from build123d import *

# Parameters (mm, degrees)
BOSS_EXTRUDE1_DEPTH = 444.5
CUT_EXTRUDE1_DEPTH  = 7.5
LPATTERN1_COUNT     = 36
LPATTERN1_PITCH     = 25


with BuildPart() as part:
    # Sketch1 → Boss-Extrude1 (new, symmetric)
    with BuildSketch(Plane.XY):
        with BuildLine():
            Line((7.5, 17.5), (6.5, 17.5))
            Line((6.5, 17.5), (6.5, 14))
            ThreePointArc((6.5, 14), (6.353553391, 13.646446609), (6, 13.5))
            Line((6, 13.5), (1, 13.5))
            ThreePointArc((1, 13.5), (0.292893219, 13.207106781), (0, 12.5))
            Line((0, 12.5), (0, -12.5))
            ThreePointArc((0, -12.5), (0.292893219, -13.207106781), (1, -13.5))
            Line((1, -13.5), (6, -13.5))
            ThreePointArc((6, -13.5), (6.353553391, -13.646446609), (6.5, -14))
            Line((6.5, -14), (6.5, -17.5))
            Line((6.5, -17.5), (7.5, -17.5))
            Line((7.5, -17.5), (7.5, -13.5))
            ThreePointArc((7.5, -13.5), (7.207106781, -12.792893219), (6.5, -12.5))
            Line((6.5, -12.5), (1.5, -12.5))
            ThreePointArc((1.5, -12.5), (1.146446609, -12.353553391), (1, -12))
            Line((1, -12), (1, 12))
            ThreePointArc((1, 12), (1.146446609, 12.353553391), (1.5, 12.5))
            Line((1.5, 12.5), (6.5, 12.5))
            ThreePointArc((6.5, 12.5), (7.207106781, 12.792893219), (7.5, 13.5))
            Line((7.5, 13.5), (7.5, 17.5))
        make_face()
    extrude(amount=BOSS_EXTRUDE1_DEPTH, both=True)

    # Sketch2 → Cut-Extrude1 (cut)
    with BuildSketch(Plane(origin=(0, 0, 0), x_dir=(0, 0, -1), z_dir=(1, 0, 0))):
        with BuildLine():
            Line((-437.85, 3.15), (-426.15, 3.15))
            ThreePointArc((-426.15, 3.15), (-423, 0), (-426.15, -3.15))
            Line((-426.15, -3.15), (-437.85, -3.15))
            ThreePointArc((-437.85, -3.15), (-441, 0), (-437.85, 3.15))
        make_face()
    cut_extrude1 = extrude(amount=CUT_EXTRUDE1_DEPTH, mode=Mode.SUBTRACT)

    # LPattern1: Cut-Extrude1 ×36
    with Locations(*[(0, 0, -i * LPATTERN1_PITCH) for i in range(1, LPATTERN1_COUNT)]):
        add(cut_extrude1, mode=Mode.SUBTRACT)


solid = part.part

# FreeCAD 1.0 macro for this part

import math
import FreeCAD as App
import Part
import Sketcher

V = App.Vector
Q = App.Units.Quantity

doc = App.newDocument("Part")
body = doc.addObject("PartDesign::Body", "Body")

sketch1 = body.newObject("Sketcher::SketchObject", "Sketch")
sketch1.AttachmentSupport = (doc.getObject("XY_Plane"), [""])
sketch1.MapMode = "FlatFace"
sketch1.addGeometry([
    Part.LineSegment(V(7.5, 17.5, 0), V(6.5, 17.5, 0)),
    Part.LineSegment(V(6.5, 17.5, 0), V(6.5, 14, 0)),
    Part.ArcOfCircle(Part.Circle(V(6, 14, 0), V(0, 0, 1), 0.5), math.radians(-90), math.radians(0)),
    Part.LineSegment(V(6, 13.5, 0), V(1, 13.5, 0)),
    Part.ArcOfCircle(Part.Circle(V(1, 12.5, 0), V(0, 0, 1), 1), math.radians(90), math.radians(180)),
    Part.LineSegment(V(0, 12.5, 0), V(0, -12.5, 0)),
    Part.ArcOfCircle(Part.Circle(V(1, -12.5, 0), V(0, 0, 1), 1), math.radians(-180), math.radians(-90)),
    Part.LineSegment(V(1, -13.5, 0), V(6, -13.5, 0)),
    Part.ArcOfCircle(Part.Circle(V(6, -14, 0), V(0, 0, 1), 0.5), math.radians(0), math.radians(90)),
    Part.LineSegment(V(6.5, -14, 0), V(6.5, -17.5, 0)),
    Part.LineSegment(V(6.5, -17.5, 0), V(7.5, -17.5, 0)),
    Part.LineSegment(V(7.5, -17.5, 0), V(7.5, -13.5, 0)),
    Part.ArcOfCircle(Part.Circle(V(6.5, -13.5, 0), V(0, 0, 1), 1), math.radians(0), math.radians(90)),
    Part.LineSegment(V(6.5, -12.5, 0), V(1.5, -12.5, 0)),
    Part.ArcOfCircle(Part.Circle(V(1.5, -12, 0), V(0, 0, 1), 0.5), math.radians(180), math.radians(270)),
    Part.LineSegment(V(1, -12, 0), V(1, 12, 0)),
    Part.ArcOfCircle(Part.Circle(V(1.5, 12, 0), V(0, 0, 1), 0.5), math.radians(90), math.radians(180)),
    Part.LineSegment(V(1.5, 12.5, 0), V(6.5, 12.5, 0)),
    Part.ArcOfCircle(Part.Circle(V(6.5, 13.5, 0), V(0, 0, 1), 1), math.radians(-90), math.radians(0)),
    Part.LineSegment(V(7.5, 13.5, 0), V(7.5, 17.5, 0)),
], False)
sketch1.addConstraint([
    Sketcher.Constraint("Coincident", 0, 2, 1, 1),
    Sketcher.Constraint("Tangent", 1, 2, 2, 2),
    Sketcher.Constraint("Tangent", 2, 1, 3, 1),
    Sketcher.Constraint("Tangent", 3, 2, 4, 1),
    Sketcher.Constraint("Tangent", 4, 2, 5, 1),
    Sketcher.Constraint("Tangent", 5, 2, 6, 1),
    Sketcher.Constraint("Tangent", 6, 2, 7, 1),
    Sketcher.Constraint("Tangent", 7, 2, 8, 2),
    Sketcher.Constraint("Tangent", 8, 1, 9, 1),
    Sketcher.Constraint("Coincident", 9, 2, 10, 1),
    Sketcher.Constraint("Coincident", 10, 2, 11, 1),
    Sketcher.Constraint("Tangent", 11, 2, 12, 1),
    Sketcher.Constraint("Tangent", 12, 2, 13, 1),
    Sketcher.Constraint("Tangent", 13, 2, 14, 2),
    Sketcher.Constraint("Tangent", 14, 1, 15, 1),
    Sketcher.Constraint("Tangent", 15, 2, 16, 2),
    Sketcher.Constraint("Tangent", 16, 1, 17, 1),
    Sketcher.Constraint("Tangent", 17, 2, 18, 1),
    Sketcher.Constraint("Tangent", 18, 2, 19, 1),
    Sketcher.Constraint("Coincident", 19, 2, 0, 1),
    Sketcher.Constraint("Horizontal", 0),
    Sketcher.Constraint("Vertical", 1),
    Sketcher.Constraint("Horizontal", 3),
    Sketcher.Constraint("Vertical", 5),
    Sketcher.Constraint("Horizontal", 7),
    Sketcher.Constraint("Vertical", 9),
    Sketcher.Constraint("Horizontal", 10),
    Sketcher.Constraint("Vertical", 11),
    Sketcher.Constraint("Horizontal", 13),
    Sketcher.Constraint("Vertical", 15),
    Sketcher.Constraint("Horizontal", 17),
    Sketcher.Constraint("Vertical", 19),
    Sketcher.Constraint("Equal", 4, 6),
    Sketcher.Constraint("Equal", 2, 8),
    Sketcher.Constraint("Equal", 6, 12),
    Sketcher.Constraint("Equal", 8, 14),
    Sketcher.Constraint("Equal", 14, 16),
    Sketcher.Constraint("Equal", 12, 18),
    Sketcher.Constraint("Symmetric", 4, 2, 5, 2, -1, 1),
    Sketcher.Constraint("Symmetric", 12, 3, 18, 3, -1),
    Sketcher.Constraint("Symmetric", 0, 2, 9, 2, -1),
    Sketcher.Constraint("Horizontal", 18, 3, 2, 1),
    Sketcher.Constraint("Vertical", 18, 3, 0, 2),
    Sketcher.Constraint("Vertical", 6, 2, 14, 1),
    Sketcher.Constraint("Radius", 4, Q("1 mm")),
    Sketcher.Constraint("Radius", 2, Q("0.5 mm")),
    Sketcher.Constraint("DistanceX", 3, 2, 3, 1, Q("5 mm")),
    Sketcher.Constraint("DistanceY", 5, 2, 5, 1, Q("25 mm")),
    Sketcher.Constraint("DistanceY", 11, 1, 11, 2, Q("4 mm")),
])
pad1 = body.newObject("PartDesign::Pad", "Pad")
pad1.Profile = sketch1
pad1.Length = 889
pad1.Midplane = True

sketch2 = body.newObject("Sketcher::SketchObject", "Sketch001")
sketch2.AttachmentSupport = (doc.getObject("YZ_Plane"), [""])
sketch2.MapMode = "FlatFace"
sketch2.addGeometry([
    Part.LineSegment(V(3.1, 426.1, 0), V(3.1, 437.9, 0)),
    Part.ArcOfCircle(Part.Circle(V(0, 437.9, 0), V(0, 0, 1), 3.1), math.radians(0), math.radians(180)),
    Part.LineSegment(V(-3.1, 437.9, 0), V(-3.1, 426.1, 0)),
    Part.ArcOfCircle(Part.Circle(V(0, 426.1, 0), V(0, 0, 1), 3.1), math.radians(180), math.radians(360)),
], False)
sketch2.addConstraint([
    Sketcher.Constraint("Tangent", 0, 2, 1, 1),
    Sketcher.Constraint("Tangent", 1, 2, 2, 1),
    Sketcher.Constraint("Tangent", 2, 2, 3, 1),
    Sketcher.Constraint("Tangent", 3, 2, 0, 1),
    Sketcher.Constraint("Vertical", 0),
    Sketcher.Constraint("Vertical", 2),
    Sketcher.Constraint("PointOnObject", 1, 3, -2),
    Sketcher.Constraint("Radius", 1, Q("3.15 mm")),
    Sketcher.Constraint("DistanceY", 0, 1, 0, 2, Q("11.7 mm")),
    Sketcher.Constraint("DistanceY", -1, 1, 1, 3, Q("437.85 mm")),
])
pocket1 = body.newObject("PartDesign::Pocket", "Pocket")
pocket1.Profile = sketch2
pocket1.Length = 7.5
pocket1.Reversed = True
doc.recompute()

linearpattern = body.newObject("PartDesign::LinearPattern", "LinearPattern")
linearpattern.Originals = [pocket1]
linearpattern.Direction = (doc.getObject("Z_Axis"), [""])
linearpattern.Mode = "offset"
linearpattern.Offset = 25
linearpattern.Occurrences = 36
linearpattern.Reversed = True
body.Tip = linearpattern

doc.recompute()
